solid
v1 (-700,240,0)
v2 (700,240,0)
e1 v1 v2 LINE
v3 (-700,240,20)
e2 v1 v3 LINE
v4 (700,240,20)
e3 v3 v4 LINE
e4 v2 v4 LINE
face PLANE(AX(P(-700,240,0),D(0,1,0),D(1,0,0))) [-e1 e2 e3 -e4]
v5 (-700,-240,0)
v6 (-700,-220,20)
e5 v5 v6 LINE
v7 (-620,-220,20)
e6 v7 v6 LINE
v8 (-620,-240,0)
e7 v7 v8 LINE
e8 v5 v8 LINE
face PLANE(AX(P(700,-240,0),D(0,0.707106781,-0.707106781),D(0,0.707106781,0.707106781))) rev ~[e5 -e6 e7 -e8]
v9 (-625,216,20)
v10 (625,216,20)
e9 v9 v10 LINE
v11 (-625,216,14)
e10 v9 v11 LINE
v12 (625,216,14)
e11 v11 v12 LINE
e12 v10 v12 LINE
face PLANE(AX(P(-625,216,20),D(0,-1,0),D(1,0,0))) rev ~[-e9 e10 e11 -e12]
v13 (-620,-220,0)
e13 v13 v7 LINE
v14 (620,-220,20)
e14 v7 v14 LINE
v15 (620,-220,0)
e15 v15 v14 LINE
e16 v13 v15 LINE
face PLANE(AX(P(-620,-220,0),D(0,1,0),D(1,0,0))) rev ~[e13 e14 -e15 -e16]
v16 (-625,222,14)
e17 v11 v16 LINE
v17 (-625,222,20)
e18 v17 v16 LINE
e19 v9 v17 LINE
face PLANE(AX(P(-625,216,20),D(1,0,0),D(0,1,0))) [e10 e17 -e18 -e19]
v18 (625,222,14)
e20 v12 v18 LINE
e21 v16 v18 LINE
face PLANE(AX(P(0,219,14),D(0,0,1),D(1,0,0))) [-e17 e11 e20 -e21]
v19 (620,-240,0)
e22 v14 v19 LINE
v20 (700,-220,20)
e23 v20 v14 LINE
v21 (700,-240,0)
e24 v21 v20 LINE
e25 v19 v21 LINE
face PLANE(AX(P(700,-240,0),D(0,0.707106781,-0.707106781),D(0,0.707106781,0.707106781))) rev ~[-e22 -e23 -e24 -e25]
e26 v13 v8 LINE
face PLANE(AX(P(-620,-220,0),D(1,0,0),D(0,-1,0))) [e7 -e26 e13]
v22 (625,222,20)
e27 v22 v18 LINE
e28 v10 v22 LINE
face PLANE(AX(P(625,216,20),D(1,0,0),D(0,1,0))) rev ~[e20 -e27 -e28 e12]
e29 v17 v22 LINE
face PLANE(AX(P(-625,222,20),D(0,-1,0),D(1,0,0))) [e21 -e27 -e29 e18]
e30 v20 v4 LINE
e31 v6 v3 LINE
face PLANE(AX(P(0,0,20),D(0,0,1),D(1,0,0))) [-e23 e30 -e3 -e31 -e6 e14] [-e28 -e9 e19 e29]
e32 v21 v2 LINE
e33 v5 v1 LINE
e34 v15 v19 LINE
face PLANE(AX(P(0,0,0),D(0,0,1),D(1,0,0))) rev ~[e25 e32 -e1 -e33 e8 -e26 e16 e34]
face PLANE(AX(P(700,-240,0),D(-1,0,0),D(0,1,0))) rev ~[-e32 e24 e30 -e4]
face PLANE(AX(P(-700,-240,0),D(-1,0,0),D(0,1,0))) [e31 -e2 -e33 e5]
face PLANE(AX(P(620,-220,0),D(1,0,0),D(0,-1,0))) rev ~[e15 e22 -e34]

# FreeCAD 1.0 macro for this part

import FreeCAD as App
import Part
import Sketcher
from FreeCAD import Vector

doc = App.newDocument("Part")
body = doc.addObject("PartDesign::Body", "Body")

# Sketch on XY plane
sketch1 = body.newObject("Sketcher::SketchObject", "Sketch")
sketch1.AttachmentSupport = (doc.getObject("XY_Plane"), [""])
sketch1.MapMode = "FlatFace"
sketch1.addGeometry([
    Part.LineSegment(Vector(-700, 240, 0), Vector(-700, -240, 0)),
    Part.LineSegment(Vector(-700, -240, 0), Vector(700, -240, 0)),
    Part.LineSegment(Vector(700, -240, 0), Vector(700, 240, 0)),
    Part.LineSegment(Vector(700, 240, 0), Vector(-700, 240, 0)),
], False)
sketch1.addConstraint([
    Sketcher.Constraint("Coincident", 0, 2, 1, 1),
    Sketcher.Constraint("Coincident", 1, 2, 2, 1),
    Sketcher.Constraint("Coincident", 2, 2, 3, 1),
    Sketcher.Constraint("Coincident", 3, 2, 0, 1),
    Sketcher.Constraint("Vertical", 0),
    Sketcher.Constraint("Horizontal", 1),
    Sketcher.Constraint("Vertical", 2),
    Sketcher.Constraint("Horizontal", 3),
    Sketcher.Constraint("Symmetric", 0, 2, 2, 2, -1, 1),
    Sketcher.Constraint("DistanceX", 1, 1, 1, 2, 1400.0),
    Sketcher.Constraint("DistanceY", 0, 2, 0, 1, 480.0),
])
pad1 = body.newObject("PartDesign::Pad", "Pad")
pad1.Profile = sketch1
pad1.Length = 20

# Sketch on YZ plane
sketch2 = body.newObject("Sketcher::SketchObject", "Sketch001")
sketch2.AttachmentSupport = (doc.getObject("YZ_Plane"), [""])
sketch2.MapMode = "FlatFace"
sketch2.AttachmentOffset = App.Placement(Vector(0, 0, 700), App.Rotation())
sketch2.addGeometry([
    Part.LineSegment(Vector(-240, 20, 0), Vector(-240, 0, 0)),
    Part.LineSegment(Vector(-240, 0, 0), Vector(-220, 20, 0)),
    Part.LineSegment(Vector(-220, 20, 0), Vector(-240, 20, 0)),
], False)
sketch2.addConstraint([
    Sketcher.Constraint("Coincident", 0, 2, 1, 1),
    Sketcher.Constraint("Coincident", 1, 2, 2, 1),
    Sketcher.Constraint("Coincident", 2, 2, 0, 1),
    Sketcher.Constraint("Vertical", 0),
    Sketcher.Constraint("Horizontal", 2),
    Sketcher.Constraint("PointOnObject", 0, 2, -1),
    Sketcher.Constraint("Equal", 2, 0),
    Sketcher.Constraint("DistanceX", 2, 2, 2, 1, 20.0),
    Sketcher.Constraint("DistanceX", 0, 2, -1, 1, 240.0),
])
pocket1 = body.newObject("PartDesign::Pocket", "Pocket")
pocket1.Profile = sketch2
pocket1.Length = 1400

# Sketch on XY plane
sketch3 = body.newObject("Sketcher::SketchObject", "Sketch002")
sketch3.AttachmentSupport = (doc.getObject("XY_Plane"), [""])
sketch3.MapMode = "FlatFace"
sketch3.AttachmentOffset = App.Placement(Vector(0, 0, 20), App.Rotation())
sketch3.addGeometry([
    Part.LineSegment(Vector(-625, 222, 0), Vector(-625, 216, 0)),
    Part.LineSegment(Vector(-625, 216, 0), Vector(625, 216, 0)),
    Part.LineSegment(Vector(625, 216, 0), Vector(625, 222, 0)),
    Part.LineSegment(Vector(625, 222, 0), Vector(-625, 222, 0)),
], False)
sketch3.addConstraint([
    Sketcher.Constraint("Coincident", 0, 2, 1, 1),
    Sketcher.Constraint("Coincident", 1, 2, 2, 1),
    Sketcher.Constraint("Coincident", 2, 2, 3, 1),
    Sketcher.Constraint("Coincident", 3, 2, 0, 1),
    Sketcher.Constraint("Vertical", 0),
    Sketcher.Constraint("Horizontal", 1),
    Sketcher.Constraint("Vertical", 2),
    Sketcher.Constraint("Horizontal", 3),
    Sketcher.Constraint("DistanceX", 1, 1, 1, 2, 1250.0),
    Sketcher.Constraint("DistanceY", 0, 2, 0, 1, 6.0),
    Sketcher.Constraint("DistanceX", 0, 2, -1, 1, 625.0),
    Sketcher.Constraint("DistanceY", -1, 1, 0, 2, 216.0),
])
pocket2 = body.newObject("PartDesign::Pocket", "Pocket001")
pocket2.Profile = sketch3
pocket2.Length = 6

# Sketch on XY plane
sketch4 = body.newObject("Sketcher::SketchObject", "Sketch003")
sketch4.AttachmentSupport = (doc.getObject("XY_Plane"), [""])
sketch4.MapMode = "FlatFace"
sketch4.addGeometry([
    Part.LineSegment(Vector(-620, -240, 0), Vector(-620, -220, 0)),
    Part.LineSegment(Vector(-620, -220, 0), Vector(620, -220, 0)),
    Part.LineSegment(Vector(620, -220, 0), Vector(620, -240, 0)),
    Part.LineSegment(Vector(620, -240, 0), Vector(-620, -240, 0)),
], False)
sketch4.addConstraint([
    Sketcher.Constraint("Coincident", 0, 2, 1, 1),
    Sketcher.Constraint("Coincident", 1, 2, 2, 1),
    Sketcher.Constraint("Coincident", 2, 2, 3, 1),
    Sketcher.Constraint("Coincident", 3, 2, 0, 1),
    Sketcher.Constraint("Vertical", 0),
    Sketcher.Constraint("Horizontal", 1),
    Sketcher.Constraint("Vertical", 2),
    Sketcher.Constraint("Horizontal", 3),
    Sketcher.Constraint("DistanceX", 1, 1, 1, 2, 1240.0),
    Sketcher.Constraint("DistanceY", 0, 1, 0, 2, 20.0),
    Sketcher.Constraint("DistanceX", 0, 2, -1, 1, 620.0),
    Sketcher.Constraint("DistanceY", 0, 2, -1, 1, 220.0),
])
pocket3 = body.newObject("PartDesign::Pocket", "Pocket002")
pocket3.Profile = sketch4
pocket3.Length = 20
pocket3.Reversed = True

doc.recompute()
